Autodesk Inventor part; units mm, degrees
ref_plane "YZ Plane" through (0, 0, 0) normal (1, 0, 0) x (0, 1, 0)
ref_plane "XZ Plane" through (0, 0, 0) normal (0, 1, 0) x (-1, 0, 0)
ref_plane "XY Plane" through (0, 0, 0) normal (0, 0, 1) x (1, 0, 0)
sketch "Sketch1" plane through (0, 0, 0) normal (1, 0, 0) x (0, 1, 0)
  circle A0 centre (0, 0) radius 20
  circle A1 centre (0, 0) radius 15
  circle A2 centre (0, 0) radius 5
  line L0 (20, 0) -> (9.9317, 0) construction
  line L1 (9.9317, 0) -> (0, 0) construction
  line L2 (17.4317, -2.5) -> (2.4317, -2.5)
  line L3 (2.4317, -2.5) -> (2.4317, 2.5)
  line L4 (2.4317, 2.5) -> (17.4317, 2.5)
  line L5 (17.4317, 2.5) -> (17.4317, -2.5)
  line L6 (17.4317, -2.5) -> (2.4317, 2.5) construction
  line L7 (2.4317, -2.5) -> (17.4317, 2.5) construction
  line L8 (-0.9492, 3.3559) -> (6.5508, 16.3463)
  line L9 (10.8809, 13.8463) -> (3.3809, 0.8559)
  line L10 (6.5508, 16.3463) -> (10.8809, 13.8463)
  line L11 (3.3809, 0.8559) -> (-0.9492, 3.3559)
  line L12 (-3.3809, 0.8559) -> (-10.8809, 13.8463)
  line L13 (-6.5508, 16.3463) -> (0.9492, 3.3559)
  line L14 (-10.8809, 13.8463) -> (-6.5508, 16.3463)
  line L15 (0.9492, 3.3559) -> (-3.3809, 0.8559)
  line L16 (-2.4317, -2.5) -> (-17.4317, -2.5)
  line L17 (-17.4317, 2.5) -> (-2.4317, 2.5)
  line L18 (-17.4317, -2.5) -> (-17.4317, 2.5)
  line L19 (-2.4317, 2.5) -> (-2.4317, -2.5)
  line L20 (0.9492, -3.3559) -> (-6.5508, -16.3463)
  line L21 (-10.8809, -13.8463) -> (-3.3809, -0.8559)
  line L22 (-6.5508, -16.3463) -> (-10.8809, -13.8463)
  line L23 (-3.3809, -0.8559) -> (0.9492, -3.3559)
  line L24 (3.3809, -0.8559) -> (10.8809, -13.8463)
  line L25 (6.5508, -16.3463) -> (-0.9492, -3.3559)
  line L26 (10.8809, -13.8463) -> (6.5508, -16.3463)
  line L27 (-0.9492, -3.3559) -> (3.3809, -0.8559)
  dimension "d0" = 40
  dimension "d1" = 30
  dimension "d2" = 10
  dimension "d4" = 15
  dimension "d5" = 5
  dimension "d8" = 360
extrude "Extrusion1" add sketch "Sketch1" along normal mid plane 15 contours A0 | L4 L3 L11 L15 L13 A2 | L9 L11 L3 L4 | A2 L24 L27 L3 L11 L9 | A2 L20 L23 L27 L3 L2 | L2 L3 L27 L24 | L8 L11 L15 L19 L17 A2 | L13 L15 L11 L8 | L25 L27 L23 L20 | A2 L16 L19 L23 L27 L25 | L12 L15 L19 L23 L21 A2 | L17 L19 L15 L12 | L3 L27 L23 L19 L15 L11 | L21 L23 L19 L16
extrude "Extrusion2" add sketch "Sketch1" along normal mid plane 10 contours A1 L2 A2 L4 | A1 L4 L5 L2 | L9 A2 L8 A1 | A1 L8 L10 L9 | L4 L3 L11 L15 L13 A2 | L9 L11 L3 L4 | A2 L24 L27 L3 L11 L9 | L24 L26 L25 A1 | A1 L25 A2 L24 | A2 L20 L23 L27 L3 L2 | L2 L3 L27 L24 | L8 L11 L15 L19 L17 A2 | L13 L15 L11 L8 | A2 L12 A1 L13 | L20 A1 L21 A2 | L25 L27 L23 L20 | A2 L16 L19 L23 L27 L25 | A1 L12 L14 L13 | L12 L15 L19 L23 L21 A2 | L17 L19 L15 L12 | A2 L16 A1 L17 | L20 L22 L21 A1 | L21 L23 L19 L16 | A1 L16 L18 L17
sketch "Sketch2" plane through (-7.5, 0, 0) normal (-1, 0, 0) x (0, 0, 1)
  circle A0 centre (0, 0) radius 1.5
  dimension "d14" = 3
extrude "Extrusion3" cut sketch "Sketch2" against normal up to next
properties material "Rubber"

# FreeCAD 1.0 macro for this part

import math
import FreeCAD as App
import Part
import Sketcher
Q = App.Units.Quantity

doc = App.newDocument("Part")
body = doc.addObject("PartDesign::Body", "Body")
body.AllowCompound = True

# Sketch on YZ plane
sketch1 = doc.addObject("Sketcher::SketchObject", "Sketch")
body.addObject(sketch1)
sketch1.AttachmentSupport = (doc.YZ_Plane, [""])
sketch1.MapMode = "FlatFace"
sketch1.addGeometry([
    Part.Circle(App.Vector(0, 0, 0), App.Vector(0, 0, 1), 20),  # 0
    Part.ArcOfCircle(Part.Circle(App.Vector(0, 0, 0), App.Vector(0, 0, 1), 15), math.radians(10), math.radians(50)),  # 1
    Part.LineSegment(App.Vector(14.8, 2.5, 0), App.Vector(17.4, 2.5, 0)),  # 2
    Part.LineSegment(App.Vector(17.4, 2.5, 0), App.Vector(17.4, -2.5, 0)),  # 3
    Part.LineSegment(App.Vector(17.4, -2.5, 0), App.Vector(14.8, -2.5, 0)),  # 4
    Part.ArcOfCircle(Part.Circle(App.Vector(0, 0, 0), App.Vector(0, 0, 1), 15), math.radians(-50), math.radians(-10)),  # 5
    Part.LineSegment(App.Vector(9.6, -11.6, 0), App.Vector(10.9, -13.8, 0)),  # 6
    Part.LineSegment(App.Vector(10.9, -13.8, 0), App.Vector(6.6, -16.3, 0)),  # 7
    Part.LineSegment(App.Vector(6.6, -16.3, 0), App.Vector(5.2, -14.1, 0)),  # 8
    Part.ArcOfCircle(Part.Circle(App.Vector(0, 0, 0), App.Vector(0, 0, 1), 15), math.radians(-110), math.radians(-70)),  # 9
    Part.LineSegment(App.Vector(-5.2, -14.1, 0), App.Vector(-6.6, -16.3, 0)),  # 10
    Part.LineSegment(App.Vector(-6.6, -16.3, 0), App.Vector(-10.9, -13.8, 0)),  # 11
    Part.LineSegment(App.Vector(-10.9, -13.8, 0), App.Vector(-9.6, -11.6, 0)),  # 12
    Part.ArcOfCircle(Part.Circle(App.Vector(0, 0, 0), App.Vector(0, 0, 1), 15), math.radians(-170), math.radians(-130)),  # 13
    Part.LineSegment(App.Vector(-14.8, -2.5, 0), App.Vector(-17.4, -2.5, 0)),  # 14
    Part.LineSegment(App.Vector(-17.4, -2.5, 0), App.Vector(-17.4, 2.5, 0)),  # 15
    Part.LineSegment(App.Vector(-17.4, 2.5, 0), App.Vector(-14.8, 2.5, 0)),  # 16
    Part.ArcOfCircle(Part.Circle(App.Vector(0, 0, 0), App.Vector(0, 0, 1), 15), math.radians(130), math.radians(170)),  # 17
    Part.LineSegment(App.Vector(-9.6, 11.6, 0), App.Vector(-10.9, 13.8, 0)),  # 18
    Part.LineSegment(App.Vector(-10.9, 13.8, 0), App.Vector(-6.6, 16.3, 0)),  # 19
    Part.LineSegment(App.Vector(-6.6, 16.3, 0), App.Vector(-5.2, 14.1, 0)),  # 20
    Part.ArcOfCircle(Part.Circle(App.Vector(0, 0, 0), App.Vector(0, 0, 1), 15), math.radians(70), math.radians(110)),  # 21
    Part.LineSegment(App.Vector(5.2, 14.1, 0), App.Vector(6.6, 16.3, 0)),  # 22
    Part.LineSegment(App.Vector(6.6, 16.3, 0), App.Vector(10.9, 13.8, 0)),  # 23
    Part.LineSegment(App.Vector(10.9, 13.8, 0), App.Vector(9.6, 11.6, 0)),  # 24
    Part.Circle(App.Vector(0, 0, 0), App.Vector(0, 0, 1), 5),  # 25
], False)
sketch1.addConstraint([
    Sketcher.Constraint("Coincident", 1, 1, 2, 1),
    Sketcher.Constraint("Coincident", 2, 2, 3, 1),
    Sketcher.Constraint("Coincident", 3, 2, 4, 1),
    Sketcher.Constraint("Coincident", 4, 2, 5, 2),
    Sketcher.Constraint("Coincident", 5, 1, 6, 1),
    Sketcher.Constraint("Coincident", 6, 2, 7, 1),
    Sketcher.Constraint("Coincident", 7, 2, 8, 1),
    Sketcher.Constraint("Coincident", 8, 2, 9, 2),
    Sketcher.Constraint("Coincident", 9, 1, 10, 1),
    Sketcher.Constraint("Coincident", 10, 2, 11, 1),
    Sketcher.Constraint("Coincident", 11, 2, 12, 1),
    Sketcher.Constraint("Coincident", 12, 2, 13, 2),
    Sketcher.Constraint("Coincident", 13, 1, 14, 1),
    Sketcher.Constraint("Coincident", 14, 2, 15, 1),
    Sketcher.Constraint("Coincident", 15, 2, 16, 1),
    Sketcher.Constraint("Coincident", 16, 2, 17, 2),
    Sketcher.Constraint("Coincident", 17, 1, 18, 1),
    Sketcher.Constraint("Coincident", 18, 2, 19, 1),
    Sketcher.Constraint("Coincident", 19, 2, 20, 1),
    Sketcher.Constraint("Coincident", 20, 2, 21, 2),
    Sketcher.Constraint("Coincident", 21, 1, 22, 1),
    Sketcher.Constraint("Coincident", 22, 2, 23, 1),
    Sketcher.Constraint("Coincident", 23, 2, 24, 1),
    Sketcher.Constraint("Coincident", 24, 2, 1, 2),
    Sketcher.Constraint("Horizontal", 2),
    Sketcher.Constraint("Vertical", 3),
    Sketcher.Constraint("Horizontal", 4),
    Sketcher.Constraint("Horizontal", 14),
    Sketcher.Constraint("Vertical", 15),
    Sketcher.Constraint("Horizontal", 16),
    Sketcher.Constraint("Coincident", 0, 3, -1, 1),
    Sketcher.Constraint("Coincident", 1, 3, -1, 1),
    Sketcher.Constraint("Coincident", 5, 3, -1, 1),
    Sketcher.Constraint("Coincident", 9, 3, -1, 1),
    Sketcher.Constraint("Coincident", 13, 3, -1, 1),
    Sketcher.Constraint("Coincident", 17, 3, -1, 1),
    Sketcher.Constraint("Coincident", 21, 3, -1, 1),
    Sketcher.Constraint("Coincident", 25, 3, -1, 1),
    Sketcher.Constraint("Equal", 1, 5),
    Sketcher.Constraint("Equal", 5, 9),
    Sketcher.Constraint("Equal", 9, 13),
    Sketcher.Constraint("Equal", 13, 17),
    Sketcher.Constraint("Equal", 17, 21),
    Sketcher.Constraint("Symmetric", 2, 2, 14, 2, -1, 1),
    Sketcher.Constraint("Symmetric", 6, 2, 18, 2, -1, 1),
    Sketcher.Constraint("Symmetric", 7, 2, 19, 2, -1, 1),
    Sketcher.Constraint("Symmetric", 10, 2, 22, 2, -1, 1),
    Sketcher.Constraint("Symmetric", 11, 2, 23, 2, -1, 1),
    Sketcher.Constraint("Symmetric", 7, 2, 10, 2, -2),
    Sketcher.Constraint("Symmetric", 6, 2, 11, 2, -2),
    Sketcher.Constraint("Perpendicular", 6, 7),
    Sketcher.Constraint("Perpendicular", 7, 8),
    Sketcher.Constraint("Perpendicular", 10, 11),
    Sketcher.Constraint("Perpendicular", 11, 12),
    Sketcher.Constraint("Parallel", 8, 18),
    Sketcher.Constraint("Perpendicular", 19, 20),
    Sketcher.Constraint("Parallel", 12, 22),
    Sketcher.Constraint("Perpendicular", 23, 24),
    Sketcher.Constraint("Horizontal", 4, 2, 13, 1),
    Sketcher.Constraint("Horizontal", 2, 2, 15, 2),
    Sketcher.Constraint("Equal", 6, 8),
    Sketcher.Constraint("Diameter", 0, 40.0),
    Sketcher.Constraint("Diameter", 25, 10.0),
    Sketcher.Constraint("Radius", 1, 15.0),
    Sketcher.Constraint("DistanceY", 3, 2, 3, 1, 5.0),
    Sketcher.Constraint("Angle", 19, Q("30.0002 deg")),
    Sketcher.Constraint("Distance", 7, 5.0),
    Sketcher.Constraint("DistanceX", 2, 1, 2, 2, 2.6415),
    Sketcher.Constraint("DistanceX", -1, 1, 6, 2, 10.881),
])
pad1 = doc.addObject("PartDesign::Pad", "Pad")
body.addObject(pad1)
pad1.Profile = sketch1
pad1.Length = 15
pad1.Midplane = True

# Sketch on YZ plane
sketch2 = doc.addObject("Sketcher::SketchObject", "Sketch001")
body.addObject(sketch2)
sketch2.AttachmentSupport = (doc.YZ_Plane, [""])
sketch2.MapMode = "FlatFace"
sketch2.addGeometry([
    Part.LineSegment(App.Vector(4.3, -2.5, 0), App.Vector(17.4, -2.5, 0)),  # 0
    Part.LineSegment(App.Vector(17.4, -2.5, 0), App.Vector(17.4, 2.5, 0)),  # 1
    Part.LineSegment(App.Vector(17.4, 2.5, 0), App.Vector(4.3, 2.5, 0)),  # 2
    Part.LineSegment(App.Vector(4.3, 2.5, 0), App.Vector(10.9, 13.8, 0)),  # 3
    Part.LineSegment(App.Vector(10.9, 13.8, 0), App.Vector(6.6, 16.3, 0)),  # 4
    Part.LineSegment(App.Vector(6.6, 16.3, 0), App.Vector(0, 5, 0)),  # 5
    Part.LineSegment(App.Vector(0, 5, 0), App.Vector(-6.6, 16.3, 0)),  # 6
    Part.LineSegment(App.Vector(-6.6, 16.3, 0), App.Vector(-10.9, 13.8, 0)),  # 7
    Part.LineSegment(App.Vector(-10.9, 13.8, 0), App.Vector(-4.3, 2.5, 0)),  # 8
    Part.LineSegment(App.Vector(-4.3, 2.5, 0), App.Vector(-17.4, 2.5, 0)),  # 9
    Part.LineSegment(App.Vector(-17.4, 2.5, 0), App.Vector(-17.4, -2.5, 0)),  # 10
    Part.LineSegment(App.Vector(-17.4, -2.5, 0), App.Vector(-4.3, -2.5, 0)),  # 11
    Part.LineSegment(App.Vector(-4.3, -2.5, 0), App.Vector(-10.9, -13.8, 0)),  # 12
    Part.LineSegment(App.Vector(-10.9, -13.8, 0), App.Vector(-6.6, -16.3, 0)),  # 13
    Part.LineSegment(App.Vector(-6.6, -16.3, 0), App.Vector(0, -5, 0)),  # 14
    Part.LineSegment(App.Vector(0, -5, 0), App.Vector(6.6, -16.3, 0)),  # 15
    Part.LineSegment(App.Vector(6.6, -16.3, 0), App.Vector(10.9, -13.8, 0)),  # 16
    Part.LineSegment(App.Vector(10.9, -13.8, 0), App.Vector(4.3, -2.5, 0)),  # 17
    Part.LineSegment(App.Vector(2.4, 1.4, 0), App.Vector(2.4, -1.4, 0)),  # 18
    Part.LineSegment(App.Vector(2.4, -1.4, 0), App.Vector(0, -2.8, 0)),  # 19
    Part.LineSegment(App.Vector(0, -2.8, 0), App.Vector(-2.4, -1.4, 0)),  # 20
    Part.LineSegment(App.Vector(-2.4, -1.4, 0), App.Vector(-2.4, 1.4, 0)),  # 21
    Part.LineSegment(App.Vector(-2.4, 1.4, 0), App.Vector(0, 2.8, 0)),  # 22
    Part.LineSegment(App.Vector(0, 2.8, 0), App.Vector(2.4, 1.4, 0)),  # 23
], False)
sketch2.addConstraint([
    Sketcher.Constraint("Coincident", 0, 2, 1, 1),
    Sketcher.Constraint("Coincident", 1, 2, 2, 1),
    Sketcher.Constraint("Coincident", 2, 2, 3, 1),
    Sketcher.Constraint("Coincident", 3, 2, 4, 1),
    Sketcher.Constraint("Coincident", 4, 2, 5, 1),
    Sketcher.Constraint("Coincident", 5, 2, 6, 1),
    Sketcher.Constraint("Coincident", 6, 2, 7, 1),
    Sketcher.Constraint("Coincident", 7, 2, 8, 1),
    Sketcher.Constraint("Coincident", 8, 2, 9, 1),
    Sketcher.Constraint("Coincident", 9, 2, 10, 1),
    Sketcher.Constraint("Coincident", 10, 2, 11, 1),
    Sketcher.Constraint("Coincident", 11, 2, 12, 1),
    Sketcher.Constraint("Coincident", 12, 2, 13, 1),
    Sketcher.Constraint("Coincident", 13, 2, 14, 1),
    Sketcher.Constraint("Coincident", 14, 2, 15, 1),
    Sketcher.Constraint("Coincident", 15, 2, 16, 1),
    Sketcher.Constraint("Coincident", 16, 2, 17, 1),
    Sketcher.Constraint("Coincident", 17, 2, 0, 1),
    Sketcher.Constraint("Coincident", 18, 2, 19, 1),
    Sketcher.Constraint("Coincident", 19, 2, 20, 1),
    Sketcher.Constraint("Coincident", 20, 2, 21, 1),
    Sketcher.Constraint("Coincident", 21, 2, 22, 1),
    Sketcher.Constraint("Coincident", 22, 2, 23, 1),
    Sketcher.Constraint("Coincident", 23, 2, 18, 1),
    Sketcher.Constraint("Horizontal", 0),
    Sketcher.Constraint("Vertical", 1),
    Sketcher.Constraint("Horizontal", 2),
    Sketcher.Constraint("Horizontal", 9),
    Sketcher.Constraint("Vertical", 10),
    Sketcher.Constraint("Horizontal", 11),
    Sketcher.Constraint("Vertical", 18),
    Sketcher.Constraint("Vertical", 21),
    Sketcher.Constraint("Symmetric", 0, 2, 9, 2, -1, 1),
    Sketcher.Constraint("Symmetric", 2, 2, 11, 2, -1, 1),
    Sketcher.Constraint("Symmetric", 3, 2, 12, 2, -1, 1),
    Sketcher.Constraint("Symmetric", 4, 2, 13, 2, -1, 1),
    Sketcher.Constraint("Symmetric", 5, 2, 14, 2, -1, 1),
    Sketcher.Constraint("Symmetric", 6, 2, 15, 2, -1, 1),
    Sketcher.Constraint("Symmetric", 7, 2, 16, 2, -1, 1),
    Sketcher.Constraint("Symmetric", 18, 2, 21, 2, -1, 1),
    Sketcher.Constraint("Symmetric", 19, 2, 22, 2, -1, 1),
    Sketcher.Constraint("Symmetric", 4, 2, 6, 2, -2),
    Sketcher.Constraint("Symmetric", 3, 2, 7, 2, -2),
    Sketcher.Constraint("Symmetric", 2, 2, 8, 2, -2),
    Sketcher.Constraint("PointOnObject", 5, 2, -2),
    Sketcher.Constraint("PointOnObject", 19, 2, -2),
    Sketcher.Constraint("Perpendicular", 3, 4),
    Sketcher.Constraint("Perpendicular", 4, 5),
    Sketcher.Constraint("Perpendicular", 16, 17),
    Sketcher.Constraint("Perpendicular", 17, 19),
    Sketcher.Constraint("Perpendicular", 14, 20),
    Sketcher.Constraint("Parallel", 20, 23),
    Sketcher.Constraint("Equal", 3, 5),
    Sketcher.Constraint("DistanceY", 1, 1, 1, 2, 5.0),
    Sketcher.Constraint("Angle", 13, Q("-30.0002 deg")),
    Sketcher.Constraint("Distance", 4, 5.0),
    Sketcher.Constraint("Distance", 19, 2.808),
    Sketcher.Constraint("DistanceX", 0, 1, 0, 2, 13.1016),
    Sketcher.Constraint("DistanceY", 18, 2, 18, 1, 2.8078),
    Sketcher.Constraint("DistanceX", -1, 1, 3, 2, 10.881),
])
pad2 = doc.addObject("PartDesign::Pad", "Pad001")
body.addObject(pad2)
pad2.Profile = sketch2
pad2.Length = 10
pad2.Midplane = True

# Sketch on YZ plane
sketch3 = doc.addObject("Sketcher::SketchObject", "Sketch002")
body.addObject(sketch3)
sketch3.AttachmentSupport = (doc.YZ_Plane, [""])
sketch3.MapMode = "FlatFace"
sketch3.AttachmentOffset = App.Placement(App.Vector(0, 0, -7.5), App.Rotation())
sketch3.addGeometry(Part.Circle(App.Vector(0, 0, 0), App.Vector(0, 0, 1), 1.5), False)
sketch3.addConstraint([
    Sketcher.Constraint("Coincident", 0, 3, -1, 1),
    Sketcher.Constraint("Diameter", 0, 3.0),
])
pocket1 = doc.addObject("PartDesign::Pocket", "Pocket")
body.addObject(pocket1)
pocket1.Profile = sketch3
pocket1.Type = "UpToFirst"
pocket1.Reversed = True

doc.recompute()
